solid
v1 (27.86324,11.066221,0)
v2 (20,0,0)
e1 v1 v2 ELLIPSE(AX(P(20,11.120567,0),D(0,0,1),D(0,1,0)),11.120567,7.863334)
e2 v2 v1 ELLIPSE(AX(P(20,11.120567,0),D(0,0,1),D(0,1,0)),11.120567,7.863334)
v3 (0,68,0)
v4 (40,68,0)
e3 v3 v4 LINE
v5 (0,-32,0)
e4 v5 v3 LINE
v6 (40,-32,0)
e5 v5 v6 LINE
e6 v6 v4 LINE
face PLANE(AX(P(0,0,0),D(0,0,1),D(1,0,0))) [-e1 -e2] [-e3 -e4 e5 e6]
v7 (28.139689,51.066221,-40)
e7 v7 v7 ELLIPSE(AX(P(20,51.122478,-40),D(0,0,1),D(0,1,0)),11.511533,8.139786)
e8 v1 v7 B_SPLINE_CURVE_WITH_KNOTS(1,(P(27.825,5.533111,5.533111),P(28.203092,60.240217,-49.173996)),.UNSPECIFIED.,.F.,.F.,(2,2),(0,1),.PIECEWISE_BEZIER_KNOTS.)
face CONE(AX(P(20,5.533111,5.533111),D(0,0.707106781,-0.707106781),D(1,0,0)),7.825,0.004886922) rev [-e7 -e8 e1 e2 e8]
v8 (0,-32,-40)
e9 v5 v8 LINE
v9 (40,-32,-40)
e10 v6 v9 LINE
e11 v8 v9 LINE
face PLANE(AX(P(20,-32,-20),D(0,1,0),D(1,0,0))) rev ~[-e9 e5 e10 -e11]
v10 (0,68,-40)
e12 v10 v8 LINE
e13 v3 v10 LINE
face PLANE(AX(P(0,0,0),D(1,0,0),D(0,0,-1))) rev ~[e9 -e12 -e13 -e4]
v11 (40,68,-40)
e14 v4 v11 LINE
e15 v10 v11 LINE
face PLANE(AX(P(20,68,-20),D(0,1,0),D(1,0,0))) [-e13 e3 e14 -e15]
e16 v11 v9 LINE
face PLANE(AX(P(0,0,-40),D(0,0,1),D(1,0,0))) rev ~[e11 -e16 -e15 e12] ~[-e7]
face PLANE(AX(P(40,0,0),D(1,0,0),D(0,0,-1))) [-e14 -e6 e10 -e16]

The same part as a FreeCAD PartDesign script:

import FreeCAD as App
import Part
import Sketcher

V = App.Vector
Q = App.Units.Quantity


def add_polygon(sketch, points):
    """Adds a closed chain of lines whose ends are joined by coincident constraints."""
    first, n = sketch.GeometryCount, len(points)
    for a, b in zip(points, points[1:] + points[:1]):
        sketch.addGeometry(Part.LineSegment(App.Vector(*a, 0), App.Vector(*b, 0)), False)
    for i in range(n):
        sketch.addConstraint(Sketcher.Constraint("Coincident", first + i, 2, first + (i + 1) % n, 1))

doc = App.newDocument("Part")
body = doc.addObject("PartDesign::Body", "Body")

# Sketch on XZ plane
sketch1 = doc.addObject("Sketcher::SketchObject", "Sketch")
body.addObject(sketch1)
sketch1.AttachmentSupport = (doc.XZ_Plane, [""])
sketch1.MapMode = "FlatFace"
add_polygon(sketch1, [(0, -40), (0, 0), (40, 0), (40, -40)])  # lines 0-3
sketch1.addConstraint([
    Sketcher.Constraint("Vertical", 0),
    Sketcher.Constraint("Horizontal", 1),
    Sketcher.Constraint("Vertical", 2),
    Sketcher.Constraint("Horizontal", 3),
    Sketcher.Constraint("Coincident", 0, 2, -1, 1),
    Sketcher.Constraint("Equal", 3, 0),
    Sketcher.Constraint("DistanceX", 1, 1, 1, 2, Q("40 mm")),
])
pad1 = doc.addObject("PartDesign::Pad", "Pad")
body.addObject(pad1)
pad1.Profile = sketch1
pad1.Type = "TwoLengths"
pad1.Length = 68
pad1.Length2 = 32
pad1.Reversed = True

# Sketch on an angled plane
sketch2 = doc.addObject("Sketcher::SketchObject", "Sketch001")
body.addObject(sketch2)
sketch2.Placement = App.Placement(V(0, 0, 0), App.Rotation(V(1, 0, 0), V(0, 0.707106781, 0.707106781), V(0, -0.707106781, 0.707106781), "ZXY"))
sketch2.addGeometry(Part.Circle(V(20, 8, 0), V(0, 0, 1), 8), False)
sketch2.addConstraint([
    Sketcher.Constraint("Diameter", 0, Q("15.65 mm")),
    Sketcher.Constraint("DistanceX", -1, 1, 0, 3, Q("20 mm")),
    Sketcher.Constraint("DistanceY", -1, 1, 0, 3, Q("7.825 mm")),
])
pocket1 = doc.addObject("PartDesign::Pocket", "Pocket")
body.addObject(pocket1)
pocket1.Profile = sketch2
pocket1.Length = 77.367532
pocket1.TaperAngle = 0.28

doc.recompute()
